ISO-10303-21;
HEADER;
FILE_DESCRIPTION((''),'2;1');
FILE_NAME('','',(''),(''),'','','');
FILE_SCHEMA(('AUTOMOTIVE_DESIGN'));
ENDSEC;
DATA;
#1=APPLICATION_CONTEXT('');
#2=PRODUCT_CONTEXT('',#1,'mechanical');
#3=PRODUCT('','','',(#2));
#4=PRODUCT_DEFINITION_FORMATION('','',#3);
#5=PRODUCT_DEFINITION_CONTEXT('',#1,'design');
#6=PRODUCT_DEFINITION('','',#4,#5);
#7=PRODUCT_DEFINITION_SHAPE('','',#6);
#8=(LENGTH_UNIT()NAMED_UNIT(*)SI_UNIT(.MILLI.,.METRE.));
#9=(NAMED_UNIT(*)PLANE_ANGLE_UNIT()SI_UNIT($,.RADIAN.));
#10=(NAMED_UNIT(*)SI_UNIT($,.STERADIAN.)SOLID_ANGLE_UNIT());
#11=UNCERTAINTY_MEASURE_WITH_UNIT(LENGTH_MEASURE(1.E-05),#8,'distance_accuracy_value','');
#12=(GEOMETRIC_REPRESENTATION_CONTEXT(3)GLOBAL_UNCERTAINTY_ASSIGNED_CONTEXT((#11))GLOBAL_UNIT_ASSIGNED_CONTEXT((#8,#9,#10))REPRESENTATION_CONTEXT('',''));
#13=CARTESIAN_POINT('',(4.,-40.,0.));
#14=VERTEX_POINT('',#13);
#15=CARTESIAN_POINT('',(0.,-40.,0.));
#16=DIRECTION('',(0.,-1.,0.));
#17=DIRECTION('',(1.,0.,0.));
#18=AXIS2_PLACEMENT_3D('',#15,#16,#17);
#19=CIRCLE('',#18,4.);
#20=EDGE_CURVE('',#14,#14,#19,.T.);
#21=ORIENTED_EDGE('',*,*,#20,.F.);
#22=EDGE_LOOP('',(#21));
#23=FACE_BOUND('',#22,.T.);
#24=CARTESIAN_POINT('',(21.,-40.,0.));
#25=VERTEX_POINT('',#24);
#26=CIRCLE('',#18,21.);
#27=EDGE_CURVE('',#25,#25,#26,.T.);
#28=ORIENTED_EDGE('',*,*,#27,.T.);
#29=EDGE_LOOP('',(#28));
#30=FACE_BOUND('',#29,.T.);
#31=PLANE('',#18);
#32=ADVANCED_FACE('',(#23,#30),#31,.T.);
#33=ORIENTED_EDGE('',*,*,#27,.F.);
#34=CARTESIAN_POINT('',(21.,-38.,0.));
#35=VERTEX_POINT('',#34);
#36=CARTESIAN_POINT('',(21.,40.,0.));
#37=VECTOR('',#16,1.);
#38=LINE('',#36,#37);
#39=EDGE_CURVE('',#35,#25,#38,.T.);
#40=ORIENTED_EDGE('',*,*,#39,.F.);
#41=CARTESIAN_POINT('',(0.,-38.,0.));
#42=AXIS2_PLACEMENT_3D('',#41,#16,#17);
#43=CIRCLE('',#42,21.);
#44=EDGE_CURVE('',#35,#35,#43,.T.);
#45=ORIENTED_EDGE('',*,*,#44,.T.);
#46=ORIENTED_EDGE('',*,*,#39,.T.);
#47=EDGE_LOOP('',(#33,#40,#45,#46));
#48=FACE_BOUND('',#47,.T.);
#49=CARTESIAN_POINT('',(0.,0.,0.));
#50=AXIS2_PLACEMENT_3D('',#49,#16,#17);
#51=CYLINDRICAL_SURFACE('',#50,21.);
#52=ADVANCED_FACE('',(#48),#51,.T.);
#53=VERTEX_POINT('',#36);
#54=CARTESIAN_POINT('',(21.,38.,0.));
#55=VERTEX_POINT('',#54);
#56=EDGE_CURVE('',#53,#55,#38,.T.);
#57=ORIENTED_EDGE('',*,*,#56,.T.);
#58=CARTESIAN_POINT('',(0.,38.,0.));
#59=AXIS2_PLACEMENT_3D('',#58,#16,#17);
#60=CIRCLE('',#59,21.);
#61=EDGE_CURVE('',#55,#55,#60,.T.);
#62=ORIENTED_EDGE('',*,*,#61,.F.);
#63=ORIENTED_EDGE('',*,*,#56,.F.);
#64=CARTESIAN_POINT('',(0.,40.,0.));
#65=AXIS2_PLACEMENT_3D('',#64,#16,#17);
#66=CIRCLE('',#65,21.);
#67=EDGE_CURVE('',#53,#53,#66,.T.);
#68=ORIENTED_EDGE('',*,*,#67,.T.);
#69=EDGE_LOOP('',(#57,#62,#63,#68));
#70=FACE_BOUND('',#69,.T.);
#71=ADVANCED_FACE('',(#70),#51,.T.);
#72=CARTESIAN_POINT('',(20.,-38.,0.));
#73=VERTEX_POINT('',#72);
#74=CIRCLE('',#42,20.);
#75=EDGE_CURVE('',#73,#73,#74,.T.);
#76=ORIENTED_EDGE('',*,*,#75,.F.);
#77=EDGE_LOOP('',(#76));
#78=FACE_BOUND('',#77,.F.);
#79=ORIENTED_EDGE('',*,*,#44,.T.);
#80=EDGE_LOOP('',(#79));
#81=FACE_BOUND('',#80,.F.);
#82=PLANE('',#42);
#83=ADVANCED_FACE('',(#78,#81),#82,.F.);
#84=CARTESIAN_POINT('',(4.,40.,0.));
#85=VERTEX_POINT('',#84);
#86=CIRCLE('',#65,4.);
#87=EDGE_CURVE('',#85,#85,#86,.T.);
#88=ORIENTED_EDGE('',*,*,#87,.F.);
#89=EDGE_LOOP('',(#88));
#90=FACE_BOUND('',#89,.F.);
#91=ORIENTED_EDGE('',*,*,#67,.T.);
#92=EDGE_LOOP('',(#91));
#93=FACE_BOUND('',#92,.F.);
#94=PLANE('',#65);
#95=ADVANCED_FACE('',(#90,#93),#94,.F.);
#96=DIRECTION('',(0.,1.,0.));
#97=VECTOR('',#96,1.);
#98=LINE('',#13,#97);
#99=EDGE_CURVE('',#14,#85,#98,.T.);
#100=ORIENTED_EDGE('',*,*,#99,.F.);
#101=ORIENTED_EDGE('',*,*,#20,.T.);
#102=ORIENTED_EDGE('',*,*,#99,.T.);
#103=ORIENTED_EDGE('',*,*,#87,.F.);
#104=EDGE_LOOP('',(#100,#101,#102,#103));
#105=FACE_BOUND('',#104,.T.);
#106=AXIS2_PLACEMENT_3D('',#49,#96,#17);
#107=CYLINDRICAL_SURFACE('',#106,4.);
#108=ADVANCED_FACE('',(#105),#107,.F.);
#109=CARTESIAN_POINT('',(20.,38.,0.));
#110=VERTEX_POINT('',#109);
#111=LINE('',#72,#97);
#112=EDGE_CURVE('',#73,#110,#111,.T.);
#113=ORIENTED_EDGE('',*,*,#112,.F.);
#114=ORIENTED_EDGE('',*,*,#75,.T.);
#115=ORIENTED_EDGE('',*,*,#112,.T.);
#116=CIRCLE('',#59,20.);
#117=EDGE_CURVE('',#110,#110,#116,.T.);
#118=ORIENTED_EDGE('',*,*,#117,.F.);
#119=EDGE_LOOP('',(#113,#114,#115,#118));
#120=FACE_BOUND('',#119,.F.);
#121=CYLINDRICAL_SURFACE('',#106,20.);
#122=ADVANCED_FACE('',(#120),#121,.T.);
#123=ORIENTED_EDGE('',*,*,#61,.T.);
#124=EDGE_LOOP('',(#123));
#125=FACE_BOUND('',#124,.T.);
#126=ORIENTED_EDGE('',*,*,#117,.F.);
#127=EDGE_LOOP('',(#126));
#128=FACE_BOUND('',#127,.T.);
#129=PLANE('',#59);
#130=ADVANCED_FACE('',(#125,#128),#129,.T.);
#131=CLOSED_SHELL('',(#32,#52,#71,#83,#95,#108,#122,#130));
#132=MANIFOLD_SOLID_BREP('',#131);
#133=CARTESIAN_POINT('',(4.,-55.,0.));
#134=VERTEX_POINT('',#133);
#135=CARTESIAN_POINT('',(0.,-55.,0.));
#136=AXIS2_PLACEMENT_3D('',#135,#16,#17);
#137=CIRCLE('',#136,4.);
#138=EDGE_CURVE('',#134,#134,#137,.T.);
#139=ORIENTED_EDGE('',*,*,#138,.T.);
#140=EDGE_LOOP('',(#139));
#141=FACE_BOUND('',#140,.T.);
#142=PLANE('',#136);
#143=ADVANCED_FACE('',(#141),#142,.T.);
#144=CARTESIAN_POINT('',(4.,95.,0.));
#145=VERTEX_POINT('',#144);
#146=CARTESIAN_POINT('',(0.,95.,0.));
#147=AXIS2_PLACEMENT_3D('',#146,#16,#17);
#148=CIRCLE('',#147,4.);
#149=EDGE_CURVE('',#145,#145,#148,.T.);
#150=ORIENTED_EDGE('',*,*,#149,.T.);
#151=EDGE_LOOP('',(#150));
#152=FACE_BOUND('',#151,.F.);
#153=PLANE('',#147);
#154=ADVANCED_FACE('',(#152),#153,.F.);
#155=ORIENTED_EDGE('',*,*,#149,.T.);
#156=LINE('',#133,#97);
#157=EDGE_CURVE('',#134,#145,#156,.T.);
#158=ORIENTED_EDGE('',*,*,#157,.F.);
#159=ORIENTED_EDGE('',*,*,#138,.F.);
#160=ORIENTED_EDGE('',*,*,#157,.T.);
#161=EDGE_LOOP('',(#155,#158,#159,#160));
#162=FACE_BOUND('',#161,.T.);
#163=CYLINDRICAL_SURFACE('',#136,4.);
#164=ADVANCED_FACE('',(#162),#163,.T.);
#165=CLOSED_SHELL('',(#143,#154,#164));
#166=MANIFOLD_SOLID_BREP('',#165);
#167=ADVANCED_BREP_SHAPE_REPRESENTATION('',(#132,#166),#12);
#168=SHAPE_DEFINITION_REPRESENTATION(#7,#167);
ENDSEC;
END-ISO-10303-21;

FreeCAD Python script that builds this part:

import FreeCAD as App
import Part
import Sketcher
from FreeCAD import Vector

doc = App.newDocument("Part")
params = doc.addObject("Spreadsheet::Sheet", "Params")
for row, (alias, value) in enumerate([
    ("sketch1_diameter", "42 mm"),
    ("sketch1_diameter2", "8 mm"),
    ("pad1_length", "80 mm"),
    ("sketch2_diameter", "42 mm"),
    ("sketch2_diameter2", "40 mm"),
    ("pocket1_length", "76 mm"),
    ("sketch3_diameter", "8 mm"),
    ("pad2_length", "150 mm"),
], start=1):
    params.set(f"A{row}", alias)
    params.set(f"B{row}", "=" + value)
    params.setAlias(f"B{row}", alias)

body = doc.addObject("PartDesign::Body", "Body")

# Sketch on XZ plane
sketch1 = body.newObject("Sketcher::SketchObject", "Sketch")
sketch1.AttachmentSupport = (doc.getObject("XZ_Plane"), [""])
sketch1.MapMode = "FlatFace"
sketch1.addGeometry([
    Part.Circle(Vector(0, 0, 0), Vector(0, 0, 1), 21),
    Part.Circle(Vector(0, 0, 0), Vector(0, 0, 1), 4),
], False)
sketch1.addConstraint([
    Sketcher.Constraint("Coincident", 0, 3, -1, 1),
    Sketcher.Constraint("Coincident", 1, 3, -1, 1),
    Sketcher.Constraint("Diameter", 0, 42.0),
    Sketcher.Constraint("Diameter", 1, 8.0),
])
sketch1.setExpression("Constraints[2]", "Params.sketch1_diameter")
sketch1.setExpression("Constraints[3]", "Params.sketch1_diameter2")
pad1 = body.newObject("PartDesign::Pad", "Pad")
pad1.Profile = sketch1
pad1.setExpression("Length", "Params.pad1_length")
pad1.Midplane = True

# Sketch on XZ plane
sketch2 = body.newObject("Sketcher::SketchObject", "Sketch001")
sketch2.AttachmentSupport = (doc.getObject("XZ_Plane"), [""])
sketch2.MapMode = "FlatFace"
sketch2.addGeometry([
    Part.Circle(Vector(0, 0, 0), Vector(0, 0, 1), 21),
    Part.Circle(Vector(0, 0, 0), Vector(0, 0, 1), 20),
], False)
sketch2.addConstraint([
    Sketcher.Constraint("Coincident", 0, 3, -1, 1),
    Sketcher.Constraint("Coincident", 1, 3, -1, 1),
    Sketcher.Constraint("Diameter", 0, 42.0),
    Sketcher.Constraint("Diameter", 1, 40.0),
])
sketch2.setExpression("Constraints[2]", "Params.sketch2_diameter")
sketch2.setExpression("Constraints[3]", "Params.sketch2_diameter2")
pocket1 = body.newObject("PartDesign::Pocket", "Pocket")
pocket1.Profile = sketch2
pocket1.setExpression("Length", "Params.pocket1_length")
pocket1.Midplane = True
body2 = doc.addObject("PartDesign::Body", "Body001")

# Sketch on XZ plane
sketch3 = body2.newObject("Sketcher::SketchObject", "Sketch002")
sketch3.AttachmentSupport = (doc.getObject("XZ_Plane001"), [""])
sketch3.MapMode = "FlatFace"
sketch3.AttachmentOffset = App.Placement(Vector(0, 0, 55), App.Rotation())
sketch3.addGeometry(Part.Circle(Vector(0, 0, 0), Vector(0, 0, 1), 4), False)
sketch3.addConstraint([
    Sketcher.Constraint("Coincident", 0, 3, -1, 1),
    Sketcher.Constraint("Diameter", 0, 8.0),
])
sketch3.setExpression("Constraints[1]", "Params.sketch3_diameter")
pad2 = body2.newObject("PartDesign::Pad", "Pad001")
pad2.Profile = sketch3
pad2.setExpression("Length", "Params.pad2_length")
pad2.Reversed = True

doc.recompute()
